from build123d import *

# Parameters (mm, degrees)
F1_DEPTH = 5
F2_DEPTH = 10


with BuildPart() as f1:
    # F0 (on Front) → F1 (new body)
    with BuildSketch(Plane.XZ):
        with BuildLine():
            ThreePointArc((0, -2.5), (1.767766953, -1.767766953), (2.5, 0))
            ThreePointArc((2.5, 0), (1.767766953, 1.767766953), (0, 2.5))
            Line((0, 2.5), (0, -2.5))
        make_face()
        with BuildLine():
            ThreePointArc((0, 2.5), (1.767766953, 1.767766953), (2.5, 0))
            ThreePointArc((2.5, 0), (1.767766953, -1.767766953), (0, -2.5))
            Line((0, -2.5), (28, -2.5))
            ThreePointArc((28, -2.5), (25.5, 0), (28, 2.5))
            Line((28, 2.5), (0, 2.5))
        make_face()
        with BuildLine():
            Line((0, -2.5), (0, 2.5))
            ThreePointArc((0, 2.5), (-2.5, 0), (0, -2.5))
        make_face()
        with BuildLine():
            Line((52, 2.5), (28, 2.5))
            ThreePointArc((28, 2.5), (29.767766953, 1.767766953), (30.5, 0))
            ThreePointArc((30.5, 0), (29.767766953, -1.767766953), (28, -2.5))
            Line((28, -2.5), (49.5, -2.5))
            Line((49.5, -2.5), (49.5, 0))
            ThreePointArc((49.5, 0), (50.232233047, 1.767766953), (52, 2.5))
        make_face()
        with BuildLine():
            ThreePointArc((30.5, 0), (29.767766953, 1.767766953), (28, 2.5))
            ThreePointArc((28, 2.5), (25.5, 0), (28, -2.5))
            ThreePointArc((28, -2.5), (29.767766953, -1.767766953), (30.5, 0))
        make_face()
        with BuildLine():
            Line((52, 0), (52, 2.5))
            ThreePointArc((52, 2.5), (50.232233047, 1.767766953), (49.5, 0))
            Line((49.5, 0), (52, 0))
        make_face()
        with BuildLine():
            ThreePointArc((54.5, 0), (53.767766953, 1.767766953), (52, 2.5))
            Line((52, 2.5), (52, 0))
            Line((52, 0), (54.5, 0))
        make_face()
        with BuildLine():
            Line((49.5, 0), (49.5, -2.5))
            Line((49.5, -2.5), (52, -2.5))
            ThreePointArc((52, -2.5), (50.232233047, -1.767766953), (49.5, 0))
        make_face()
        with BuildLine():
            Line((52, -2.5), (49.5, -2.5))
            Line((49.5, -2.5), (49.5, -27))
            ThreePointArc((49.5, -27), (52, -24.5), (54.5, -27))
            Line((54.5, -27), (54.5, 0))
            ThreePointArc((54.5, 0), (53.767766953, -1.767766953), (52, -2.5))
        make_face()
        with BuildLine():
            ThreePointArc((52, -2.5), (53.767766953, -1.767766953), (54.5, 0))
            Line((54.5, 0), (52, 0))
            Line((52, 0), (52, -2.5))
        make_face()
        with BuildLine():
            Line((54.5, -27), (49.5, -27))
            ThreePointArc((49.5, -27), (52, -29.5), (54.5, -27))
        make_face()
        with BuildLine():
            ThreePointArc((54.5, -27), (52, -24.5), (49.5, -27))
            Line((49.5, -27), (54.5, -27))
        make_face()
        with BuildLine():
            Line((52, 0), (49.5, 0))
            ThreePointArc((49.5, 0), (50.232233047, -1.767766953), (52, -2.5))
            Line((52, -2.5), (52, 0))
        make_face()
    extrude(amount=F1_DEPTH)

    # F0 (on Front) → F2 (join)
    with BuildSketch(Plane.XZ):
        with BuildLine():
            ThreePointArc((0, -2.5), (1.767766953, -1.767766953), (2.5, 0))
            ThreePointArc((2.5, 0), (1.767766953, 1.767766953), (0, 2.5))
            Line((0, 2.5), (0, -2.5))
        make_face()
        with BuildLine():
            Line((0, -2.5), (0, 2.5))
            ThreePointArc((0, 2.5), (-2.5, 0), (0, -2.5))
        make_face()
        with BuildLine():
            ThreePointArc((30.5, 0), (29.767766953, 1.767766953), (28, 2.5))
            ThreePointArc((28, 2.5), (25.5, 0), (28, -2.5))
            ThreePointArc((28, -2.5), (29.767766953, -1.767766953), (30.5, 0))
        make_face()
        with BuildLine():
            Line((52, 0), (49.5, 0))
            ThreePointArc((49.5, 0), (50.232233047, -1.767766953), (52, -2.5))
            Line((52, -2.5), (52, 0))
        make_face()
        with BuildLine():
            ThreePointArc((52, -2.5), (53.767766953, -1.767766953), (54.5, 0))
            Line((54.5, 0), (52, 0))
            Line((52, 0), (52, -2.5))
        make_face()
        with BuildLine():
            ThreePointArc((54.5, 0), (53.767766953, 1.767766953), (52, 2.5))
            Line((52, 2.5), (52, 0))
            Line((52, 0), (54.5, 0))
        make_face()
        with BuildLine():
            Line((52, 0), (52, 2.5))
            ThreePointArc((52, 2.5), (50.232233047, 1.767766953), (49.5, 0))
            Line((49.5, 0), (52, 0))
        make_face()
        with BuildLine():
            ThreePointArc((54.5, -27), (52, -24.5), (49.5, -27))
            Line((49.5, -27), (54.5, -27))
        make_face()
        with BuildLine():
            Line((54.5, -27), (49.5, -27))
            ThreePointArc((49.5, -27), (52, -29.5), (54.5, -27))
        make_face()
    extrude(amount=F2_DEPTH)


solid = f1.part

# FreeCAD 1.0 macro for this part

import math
import FreeCAD as App
import Part
import Sketcher

V = App.Vector

doc = App.newDocument("Part")
body = doc.addObject("PartDesign::Body", "Body")

sketch1 = body.newObject("Sketcher::SketchObject", "Sketch")
sketch1.AttachmentSupport = (doc.getObject("XZ_Plane"), [""])
sketch1.MapMode = "FlatFace"
sketch1.addGeometry(Part.LineSegment(V(54.5, -27, 0), V(54.5, 0, 0)), False)
sketch1.addGeometry(Part.ArcOfCircle(Part.Circle(V(52, 0, 0), V(0, 0, 1), 2.5), math.radians(0), math.radians(90)), False)
sketch1.addGeometry(Part.LineSegment(V(52, 2.5, 0), V(0, 2.5, 0)), False)
sketch1.addGeometry(Part.ArcOfCircle(Part.Circle(V(0, 0, 0), V(0, 0, 1), 2.5), math.radians(90), math.radians(270)), False)
sketch1.addGeometry(Part.LineSegment(V(0, -2.5, 0), V(49.5, -2.5, 0)), False)
sketch1.addGeometry(Part.LineSegment(V(49.5, -2.5, 0), V(49.5, -27, 0)), False)
sketch1.addGeometry(Part.ArcOfCircle(Part.Circle(V(52, -27, 0), V(0, 0, 1), 2.5), math.radians(180), math.radians(360)), False)
sketch1.addConstraint(Sketcher.Constraint("Tangent", 0, 2, 1, 1))
sketch1.addConstraint(Sketcher.Constraint("Tangent", 1, 2, 2, 1))
sketch1.addConstraint(Sketcher.Constraint("Tangent", 2, 2, 3, 1))
sketch1.addConstraint(Sketcher.Constraint("Tangent", 3, 2, 4, 1))
sketch1.addConstraint(Sketcher.Constraint("Coincident", 4, 2, 5, 1))
sketch1.addConstraint(Sketcher.Constraint("Tangent", 5, 2, 6, 1))
sketch1.addConstraint(Sketcher.Constraint("Tangent", 6, 2, 0, 1))
sketch1.addConstraint(Sketcher.Constraint("Vertical", 0))
sketch1.addConstraint(Sketcher.Constraint("Horizontal", 2))
sketch1.addConstraint(Sketcher.Constraint("Horizontal", 4))
sketch1.addConstraint(Sketcher.Constraint("Vertical", 5))
sketch1.addConstraint(Sketcher.Constraint("Coincident", 3, 3, -1, 1))
sketch1.addConstraint(Sketcher.Constraint("Equal", 1, 3))
sketch1.addConstraint(Sketcher.Constraint("Equal", 3, 6))
sketch1.addConstraint(Sketcher.Constraint("Radius", 1, 2.5))
sketch1.addConstraint(Sketcher.Constraint("DistanceX", 2, 2, 2, 1, 52.0))
sketch1.addConstraint(Sketcher.Constraint("DistanceY", 0, 1, 0, 2, 27.0))
pad1 = body.newObject("PartDesign::Pad", "Pad")
pad1.Profile = sketch1
pad1.Length = 5

sketch2 = body.newObject("Sketcher::SketchObject", "Sketch001")
sketch2.AttachmentSupport = (doc.getObject("XZ_Plane"), [""])
sketch2.MapMode = "FlatFace"
sketch2.addGeometry(Part.ArcOfCircle(Part.Circle(V(0, 0, 0), V(0, 0, 1), 2.5), math.radians(-90), math.radians(0)), False)
sketch2.addGeometry(Part.ArcOfCircle(Part.Circle(V(0, 0, 0), V(0, 0, 1), 2.5), math.radians(0), math.radians(90)), False)
sketch2.addGeometry(Part.ArcOfCircle(Part.Circle(V(0, 0, 0), V(0, 0, 1), 2.5), math.radians(90), math.radians(270)), False)
sketch2.addGeometry(Part.ArcOfCircle(Part.Circle(V(28, 0, 0), V(0, 0, 1), 2.5), math.radians(0), math.radians(90)), False)
sketch2.addGeometry(Part.ArcOfCircle(Part.Circle(V(28, 0, 0), V(0, 0, 1), 2.5), math.radians(90), math.radians(270)), False)
sketch2.addGeometry(Part.ArcOfCircle(Part.Circle(V(28, 0, 0), V(0, 0, 1), 2.5), math.radians(-90), math.radians(0)), False)
sketch2.addGeometry(Part.ArcOfCircle(Part.Circle(V(52, 0, 0), V(0, 0, 1), 2.5), math.radians(180), math.radians(270)), False)
sketch2.addGeometry(Part.ArcOfCircle(Part.Circle(V(52, 0, 0), V(0, 0, 1), 2.5), math.radians(-90), math.radians(0)), False)
sketch2.addGeometry(Part.ArcOfCircle(Part.Circle(V(52, 0, 0), V(0, 0, 1), 2.5), math.radians(0), math.radians(90)), False)
sketch2.addGeometry(Part.ArcOfCircle(Part.Circle(V(52, 0, 0), V(0, 0, 1), 2.5), math.radians(90), math.radians(180)), False)
sketch2.addGeometry(Part.Circle(V(52, -27, 0), V(0, 0, 1), 2.5), False)
sketch2.addConstraint(Sketcher.Constraint("Tangent", 0, 2, 1, 1))
sketch2.addConstraint(Sketcher.Constraint("Tangent", 1, 2, 2, 1))
sketch2.addConstraint(Sketcher.Constraint("Tangent", 2, 2, 0, 1))
sketch2.addConstraint(Sketcher.Constraint("Tangent", 3, 2, 4, 1))
sketch2.addConstraint(Sketcher.Constraint("Tangent", 4, 2, 5, 1))
sketch2.addConstraint(Sketcher.Constraint("Tangent", 5, 2, 3, 1))
sketch2.addConstraint(Sketcher.Constraint("Tangent", 6, 2, 7, 1))
sketch2.addConstraint(Sketcher.Constraint("Tangent", 7, 2, 8, 1))
sketch2.addConstraint(Sketcher.Constraint("Tangent", 8, 2, 9, 1))
sketch2.addConstraint(Sketcher.Constraint("Tangent", 9, 2, 6, 1))
sketch2.addConstraint(Sketcher.Constraint("Coincident", 0, 3, -1, 1))
sketch2.addConstraint(Sketcher.Constraint("Equal", 2, 3))
sketch2.addConstraint(Sketcher.Constraint("Equal", 5, 6))
sketch2.addConstraint(Sketcher.Constraint("Equal", 6, 7))
sketch2.addConstraint(Sketcher.Constraint("Equal", 9, 10))
sketch2.addConstraint(Sketcher.Constraint("Symmetric", 3, 2, 4, 2, -1))
sketch2.addConstraint(Sketcher.Constraint("Symmetric", 6, 2, 8, 2, -1))
sketch2.addConstraint(Sketcher.Constraint("PointOnObject", 0, 2, -1))
sketch2.addConstraint(Sketcher.Constraint("PointOnObject", 1, 2, -2))
sketch2.addConstraint(Sketcher.Constraint("PointOnObject", 2, 2, -2))
sketch2.addConstraint(Sketcher.Constraint("PointOnObject", 5, 2, -1))
sketch2.addConstraint(Sketcher.Constraint("PointOnObject", 7, 2, -1))
sketch2.addConstraint(Sketcher.Constraint("PointOnObject", 9, 2, -1))
sketch2.addConstraint(Sketcher.Constraint("Vertical", 9, 3, 10, 3))
sketch2.addConstraint(Sketcher.Constraint("Vertical", 5, 3, 3, 2))
sketch2.addConstraint(Sketcher.Constraint("Vertical", 10, 3, 6, 2))
sketch2.addConstraint(Sketcher.Constraint("Diameter", 10, 5.0))
sketch2.addConstraint(Sketcher.Constraint("DistanceX", -1, 1, 3, 3, 28.0))
sketch2.addConstraint(Sketcher.Constraint("DistanceX", -1, 1, 6, 3, 52.0))
sketch2.addConstraint(Sketcher.Constraint("DistanceY", 10, 3, -1, 1, 27.0))
pad2 = body.newObject("PartDesign::Pad", "Pad001")
pad2.Profile = sketch2
pad2.Length = 10

doc.recompute()
